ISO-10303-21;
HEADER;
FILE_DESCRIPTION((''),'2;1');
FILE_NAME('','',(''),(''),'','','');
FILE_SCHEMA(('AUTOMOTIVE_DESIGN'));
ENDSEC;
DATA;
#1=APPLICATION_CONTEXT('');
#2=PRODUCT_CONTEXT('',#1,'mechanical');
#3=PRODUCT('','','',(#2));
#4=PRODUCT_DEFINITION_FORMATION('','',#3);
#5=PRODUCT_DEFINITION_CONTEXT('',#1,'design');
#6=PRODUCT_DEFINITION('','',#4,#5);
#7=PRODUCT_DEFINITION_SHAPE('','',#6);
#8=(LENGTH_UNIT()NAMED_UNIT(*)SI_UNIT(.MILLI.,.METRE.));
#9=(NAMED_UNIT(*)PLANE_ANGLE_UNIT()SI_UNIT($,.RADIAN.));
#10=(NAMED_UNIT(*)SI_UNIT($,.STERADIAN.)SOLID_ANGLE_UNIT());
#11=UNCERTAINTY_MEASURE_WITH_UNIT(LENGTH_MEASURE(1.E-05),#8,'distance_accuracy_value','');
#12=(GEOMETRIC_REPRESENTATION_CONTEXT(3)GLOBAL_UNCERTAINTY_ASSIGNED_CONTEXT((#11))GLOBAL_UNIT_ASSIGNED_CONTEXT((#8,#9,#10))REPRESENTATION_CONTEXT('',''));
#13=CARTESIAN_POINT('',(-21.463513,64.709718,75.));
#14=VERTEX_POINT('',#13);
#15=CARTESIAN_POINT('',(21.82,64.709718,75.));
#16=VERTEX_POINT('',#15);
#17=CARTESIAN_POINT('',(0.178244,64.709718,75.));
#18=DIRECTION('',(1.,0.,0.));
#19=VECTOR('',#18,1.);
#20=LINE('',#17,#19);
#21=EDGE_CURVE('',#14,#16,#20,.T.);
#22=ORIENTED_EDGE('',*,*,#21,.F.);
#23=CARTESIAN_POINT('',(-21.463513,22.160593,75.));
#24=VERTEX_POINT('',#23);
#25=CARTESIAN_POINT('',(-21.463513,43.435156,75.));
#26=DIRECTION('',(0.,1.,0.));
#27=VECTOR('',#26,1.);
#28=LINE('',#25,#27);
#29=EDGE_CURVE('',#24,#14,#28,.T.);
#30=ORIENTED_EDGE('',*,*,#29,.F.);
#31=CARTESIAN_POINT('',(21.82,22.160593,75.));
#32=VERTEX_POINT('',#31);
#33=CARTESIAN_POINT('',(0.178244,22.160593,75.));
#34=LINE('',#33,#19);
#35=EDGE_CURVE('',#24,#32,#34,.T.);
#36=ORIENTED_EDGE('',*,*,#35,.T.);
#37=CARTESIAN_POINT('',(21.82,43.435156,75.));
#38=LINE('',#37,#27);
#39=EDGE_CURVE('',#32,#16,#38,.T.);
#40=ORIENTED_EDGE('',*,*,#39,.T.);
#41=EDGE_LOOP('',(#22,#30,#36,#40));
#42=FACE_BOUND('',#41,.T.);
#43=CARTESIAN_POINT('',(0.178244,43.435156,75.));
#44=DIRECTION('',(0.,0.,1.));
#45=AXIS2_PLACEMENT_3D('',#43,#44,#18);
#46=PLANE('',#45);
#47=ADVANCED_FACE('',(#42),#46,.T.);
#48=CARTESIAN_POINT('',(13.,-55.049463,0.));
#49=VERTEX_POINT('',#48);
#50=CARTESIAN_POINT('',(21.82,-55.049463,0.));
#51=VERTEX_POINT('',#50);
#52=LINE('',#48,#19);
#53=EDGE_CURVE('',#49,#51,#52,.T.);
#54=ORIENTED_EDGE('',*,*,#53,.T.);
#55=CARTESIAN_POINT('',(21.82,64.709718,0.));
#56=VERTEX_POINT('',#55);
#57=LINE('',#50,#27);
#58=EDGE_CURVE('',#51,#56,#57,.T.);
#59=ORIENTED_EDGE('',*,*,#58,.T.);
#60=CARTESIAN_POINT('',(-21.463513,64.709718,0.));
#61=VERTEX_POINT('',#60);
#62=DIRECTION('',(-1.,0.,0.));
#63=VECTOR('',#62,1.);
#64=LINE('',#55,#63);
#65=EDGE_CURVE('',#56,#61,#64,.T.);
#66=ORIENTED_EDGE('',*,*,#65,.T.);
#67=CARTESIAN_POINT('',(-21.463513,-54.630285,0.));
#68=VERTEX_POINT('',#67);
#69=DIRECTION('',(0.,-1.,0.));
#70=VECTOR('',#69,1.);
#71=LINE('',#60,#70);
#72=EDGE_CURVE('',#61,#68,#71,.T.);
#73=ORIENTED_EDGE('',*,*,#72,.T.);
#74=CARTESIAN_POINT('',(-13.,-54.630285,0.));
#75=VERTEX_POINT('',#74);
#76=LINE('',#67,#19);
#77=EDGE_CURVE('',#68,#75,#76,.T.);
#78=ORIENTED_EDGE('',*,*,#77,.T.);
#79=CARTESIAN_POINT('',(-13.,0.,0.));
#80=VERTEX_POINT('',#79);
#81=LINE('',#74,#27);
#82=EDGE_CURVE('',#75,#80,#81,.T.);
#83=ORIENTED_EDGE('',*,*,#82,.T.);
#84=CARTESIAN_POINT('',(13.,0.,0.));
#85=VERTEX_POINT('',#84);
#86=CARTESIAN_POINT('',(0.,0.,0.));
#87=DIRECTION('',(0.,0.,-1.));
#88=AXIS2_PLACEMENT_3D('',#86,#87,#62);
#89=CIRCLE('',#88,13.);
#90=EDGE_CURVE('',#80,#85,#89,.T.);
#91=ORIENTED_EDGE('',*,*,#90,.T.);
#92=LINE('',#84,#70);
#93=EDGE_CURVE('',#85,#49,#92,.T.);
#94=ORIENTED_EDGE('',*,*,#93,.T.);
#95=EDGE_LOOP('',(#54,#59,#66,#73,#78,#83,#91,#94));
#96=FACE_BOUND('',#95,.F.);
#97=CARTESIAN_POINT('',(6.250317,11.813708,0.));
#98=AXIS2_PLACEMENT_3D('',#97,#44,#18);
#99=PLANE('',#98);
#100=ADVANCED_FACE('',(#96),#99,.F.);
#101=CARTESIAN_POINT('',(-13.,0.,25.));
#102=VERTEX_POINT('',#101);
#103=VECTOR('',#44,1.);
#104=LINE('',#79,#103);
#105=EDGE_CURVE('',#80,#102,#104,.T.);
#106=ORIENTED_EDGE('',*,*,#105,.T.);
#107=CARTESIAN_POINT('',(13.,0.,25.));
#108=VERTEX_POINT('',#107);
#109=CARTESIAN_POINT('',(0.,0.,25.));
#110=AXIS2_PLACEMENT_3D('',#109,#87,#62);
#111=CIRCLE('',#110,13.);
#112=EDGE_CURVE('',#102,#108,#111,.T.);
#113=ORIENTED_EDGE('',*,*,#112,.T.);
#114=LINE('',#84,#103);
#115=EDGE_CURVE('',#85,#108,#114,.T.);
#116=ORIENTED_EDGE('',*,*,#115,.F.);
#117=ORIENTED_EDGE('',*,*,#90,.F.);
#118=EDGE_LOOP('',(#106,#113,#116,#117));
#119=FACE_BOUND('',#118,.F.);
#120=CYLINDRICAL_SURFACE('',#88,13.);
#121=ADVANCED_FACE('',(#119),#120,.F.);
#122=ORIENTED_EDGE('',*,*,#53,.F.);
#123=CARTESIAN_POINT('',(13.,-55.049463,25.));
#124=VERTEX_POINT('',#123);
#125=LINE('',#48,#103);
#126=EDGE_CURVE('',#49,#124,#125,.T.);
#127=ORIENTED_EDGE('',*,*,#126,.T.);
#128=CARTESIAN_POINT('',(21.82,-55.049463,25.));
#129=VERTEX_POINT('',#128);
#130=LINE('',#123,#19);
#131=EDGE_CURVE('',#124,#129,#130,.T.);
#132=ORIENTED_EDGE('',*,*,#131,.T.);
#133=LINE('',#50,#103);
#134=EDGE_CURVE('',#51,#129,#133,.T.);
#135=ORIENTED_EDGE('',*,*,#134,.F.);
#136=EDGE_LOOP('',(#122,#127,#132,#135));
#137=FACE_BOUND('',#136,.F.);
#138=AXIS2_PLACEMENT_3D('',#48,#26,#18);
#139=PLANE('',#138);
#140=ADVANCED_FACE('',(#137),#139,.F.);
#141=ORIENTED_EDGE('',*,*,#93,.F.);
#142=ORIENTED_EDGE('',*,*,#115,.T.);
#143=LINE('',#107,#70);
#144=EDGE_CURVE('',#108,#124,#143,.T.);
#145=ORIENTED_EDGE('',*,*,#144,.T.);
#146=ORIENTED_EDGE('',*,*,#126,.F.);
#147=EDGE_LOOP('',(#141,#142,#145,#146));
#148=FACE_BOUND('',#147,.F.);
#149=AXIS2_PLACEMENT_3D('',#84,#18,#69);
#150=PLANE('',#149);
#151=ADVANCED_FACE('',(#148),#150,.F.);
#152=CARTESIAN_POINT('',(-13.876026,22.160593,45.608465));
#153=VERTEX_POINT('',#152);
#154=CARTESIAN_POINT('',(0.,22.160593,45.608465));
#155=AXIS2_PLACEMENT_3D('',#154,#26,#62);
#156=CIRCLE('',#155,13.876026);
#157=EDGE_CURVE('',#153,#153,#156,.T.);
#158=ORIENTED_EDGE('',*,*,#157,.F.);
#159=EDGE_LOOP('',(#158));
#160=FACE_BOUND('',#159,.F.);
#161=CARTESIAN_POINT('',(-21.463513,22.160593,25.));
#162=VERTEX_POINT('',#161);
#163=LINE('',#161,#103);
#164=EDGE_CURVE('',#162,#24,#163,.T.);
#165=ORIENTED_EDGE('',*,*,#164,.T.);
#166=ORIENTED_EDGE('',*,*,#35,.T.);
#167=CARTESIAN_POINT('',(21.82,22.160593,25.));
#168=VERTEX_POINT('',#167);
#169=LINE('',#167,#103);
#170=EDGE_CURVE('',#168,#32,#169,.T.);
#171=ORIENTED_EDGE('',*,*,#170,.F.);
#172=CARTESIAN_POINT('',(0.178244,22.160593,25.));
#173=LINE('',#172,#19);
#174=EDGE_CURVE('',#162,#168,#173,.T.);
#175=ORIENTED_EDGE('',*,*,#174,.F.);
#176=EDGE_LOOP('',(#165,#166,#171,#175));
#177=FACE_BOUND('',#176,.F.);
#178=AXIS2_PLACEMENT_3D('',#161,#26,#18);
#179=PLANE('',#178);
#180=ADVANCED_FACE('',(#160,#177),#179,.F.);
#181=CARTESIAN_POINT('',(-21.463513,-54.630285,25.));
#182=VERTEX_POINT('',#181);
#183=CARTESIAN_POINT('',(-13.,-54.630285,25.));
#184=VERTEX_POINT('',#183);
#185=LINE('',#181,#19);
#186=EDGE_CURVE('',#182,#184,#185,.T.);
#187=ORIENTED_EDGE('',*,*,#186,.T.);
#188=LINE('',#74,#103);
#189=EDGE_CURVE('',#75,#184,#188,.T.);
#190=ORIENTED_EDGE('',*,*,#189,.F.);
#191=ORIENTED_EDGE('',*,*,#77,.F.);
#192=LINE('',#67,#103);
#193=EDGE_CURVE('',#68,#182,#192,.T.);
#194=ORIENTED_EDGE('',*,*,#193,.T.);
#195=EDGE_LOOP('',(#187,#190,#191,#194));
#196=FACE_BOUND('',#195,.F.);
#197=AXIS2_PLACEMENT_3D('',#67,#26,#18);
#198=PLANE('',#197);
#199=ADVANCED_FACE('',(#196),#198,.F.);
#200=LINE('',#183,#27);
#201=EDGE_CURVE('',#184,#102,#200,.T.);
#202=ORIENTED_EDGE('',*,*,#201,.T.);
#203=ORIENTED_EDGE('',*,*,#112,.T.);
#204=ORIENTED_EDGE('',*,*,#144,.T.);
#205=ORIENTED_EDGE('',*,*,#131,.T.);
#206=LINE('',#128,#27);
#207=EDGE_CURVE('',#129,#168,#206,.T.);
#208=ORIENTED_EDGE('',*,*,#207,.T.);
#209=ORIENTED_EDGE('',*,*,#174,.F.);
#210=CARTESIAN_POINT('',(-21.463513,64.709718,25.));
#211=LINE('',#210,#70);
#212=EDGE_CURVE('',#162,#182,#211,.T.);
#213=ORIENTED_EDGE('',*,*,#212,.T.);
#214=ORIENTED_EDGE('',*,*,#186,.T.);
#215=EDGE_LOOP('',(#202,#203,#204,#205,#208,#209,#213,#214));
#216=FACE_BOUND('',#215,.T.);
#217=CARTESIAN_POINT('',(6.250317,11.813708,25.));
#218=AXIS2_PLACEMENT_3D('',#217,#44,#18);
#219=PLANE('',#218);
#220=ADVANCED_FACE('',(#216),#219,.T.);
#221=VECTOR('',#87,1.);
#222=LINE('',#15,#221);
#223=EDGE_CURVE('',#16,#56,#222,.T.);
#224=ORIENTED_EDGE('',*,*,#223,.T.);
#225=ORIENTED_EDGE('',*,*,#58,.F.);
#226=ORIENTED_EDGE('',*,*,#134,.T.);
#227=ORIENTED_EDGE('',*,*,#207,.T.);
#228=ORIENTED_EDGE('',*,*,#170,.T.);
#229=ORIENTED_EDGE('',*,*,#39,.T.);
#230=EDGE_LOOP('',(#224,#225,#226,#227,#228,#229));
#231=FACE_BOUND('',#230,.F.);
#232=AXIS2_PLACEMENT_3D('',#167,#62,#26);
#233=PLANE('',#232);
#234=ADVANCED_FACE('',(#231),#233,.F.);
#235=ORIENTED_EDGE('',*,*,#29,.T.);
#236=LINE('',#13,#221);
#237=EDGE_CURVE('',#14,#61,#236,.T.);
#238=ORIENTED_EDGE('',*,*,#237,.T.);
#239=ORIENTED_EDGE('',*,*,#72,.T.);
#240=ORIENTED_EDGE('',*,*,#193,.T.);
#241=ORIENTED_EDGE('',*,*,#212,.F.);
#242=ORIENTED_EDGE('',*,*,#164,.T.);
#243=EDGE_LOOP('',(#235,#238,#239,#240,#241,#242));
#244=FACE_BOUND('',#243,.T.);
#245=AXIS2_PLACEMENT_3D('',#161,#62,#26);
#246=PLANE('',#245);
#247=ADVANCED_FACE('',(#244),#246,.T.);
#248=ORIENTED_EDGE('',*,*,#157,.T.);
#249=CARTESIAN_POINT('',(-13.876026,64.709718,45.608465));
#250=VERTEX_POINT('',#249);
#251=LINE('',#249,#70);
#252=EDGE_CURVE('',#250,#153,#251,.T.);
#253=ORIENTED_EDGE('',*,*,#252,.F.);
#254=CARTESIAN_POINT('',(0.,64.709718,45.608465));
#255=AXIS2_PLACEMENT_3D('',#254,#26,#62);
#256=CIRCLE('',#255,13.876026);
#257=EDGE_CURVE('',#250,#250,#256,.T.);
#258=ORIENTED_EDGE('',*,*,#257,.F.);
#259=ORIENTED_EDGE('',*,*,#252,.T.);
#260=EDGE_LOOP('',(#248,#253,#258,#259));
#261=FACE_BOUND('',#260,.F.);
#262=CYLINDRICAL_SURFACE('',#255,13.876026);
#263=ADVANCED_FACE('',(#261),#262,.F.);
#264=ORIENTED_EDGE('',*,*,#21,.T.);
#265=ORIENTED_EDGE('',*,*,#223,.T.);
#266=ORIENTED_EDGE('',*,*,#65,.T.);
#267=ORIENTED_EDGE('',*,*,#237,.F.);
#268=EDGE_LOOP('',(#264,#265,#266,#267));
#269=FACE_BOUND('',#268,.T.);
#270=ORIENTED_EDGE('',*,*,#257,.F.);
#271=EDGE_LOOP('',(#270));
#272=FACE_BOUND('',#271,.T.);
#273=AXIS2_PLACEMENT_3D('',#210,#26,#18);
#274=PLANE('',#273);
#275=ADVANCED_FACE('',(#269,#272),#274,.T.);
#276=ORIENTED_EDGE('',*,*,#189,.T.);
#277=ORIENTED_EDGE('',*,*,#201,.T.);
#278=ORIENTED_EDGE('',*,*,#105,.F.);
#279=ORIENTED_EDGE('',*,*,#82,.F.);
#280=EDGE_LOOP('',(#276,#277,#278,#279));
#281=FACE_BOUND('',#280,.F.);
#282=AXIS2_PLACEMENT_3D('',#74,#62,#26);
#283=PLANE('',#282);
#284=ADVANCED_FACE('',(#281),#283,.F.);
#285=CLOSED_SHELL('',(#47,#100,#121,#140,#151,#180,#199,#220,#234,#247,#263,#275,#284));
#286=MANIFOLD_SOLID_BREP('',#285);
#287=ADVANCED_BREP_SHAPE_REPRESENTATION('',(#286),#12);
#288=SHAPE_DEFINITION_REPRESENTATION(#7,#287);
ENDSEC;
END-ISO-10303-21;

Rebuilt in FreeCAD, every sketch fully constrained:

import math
import FreeCAD as App
import Part
import Sketcher


def add_polygon(sketch, points):
    """Adds a closed chain of lines whose ends are joined by coincident constraints."""
    first, n = sketch.GeometryCount, len(points)
    for a, b in zip(points, points[1:] + points[:1]):
        sketch.addGeometry(Part.LineSegment(App.Vector(*a, 0), App.Vector(*b, 0)), False)
    for i in range(n):
        sketch.addConstraint(Sketcher.Constraint("Coincident", first + i, 2, first + (i + 1) % n, 1))

doc = App.newDocument("Part")
body = doc.addObject("PartDesign::Body", "Body")

sketch1 = body.newObject("Sketcher::SketchObject", "Sketch")
sketch1.AttachmentSupport = (doc.getObject("XY_Plane"), [""])
sketch1.MapMode = "FlatFace"
sketch1.addGeometry([
    Part.LineSegment(App.Vector(13, -55, 0), App.Vector(22, -55, 0)),
    Part.LineSegment(App.Vector(22, -55, 0), App.Vector(22, 65, 0)),
    Part.LineSegment(App.Vector(22, 65, 0), App.Vector(-21, 65, 0)),
    Part.LineSegment(App.Vector(-21, 65, 0), App.Vector(-21, -55, 0)),
    Part.LineSegment(App.Vector(-21, -55, 0), App.Vector(-13, -55, 0)),
    Part.LineSegment(App.Vector(-13, -55, 0), App.Vector(-13, 0, 0)),
    Part.ArcOfCircle(Part.Circle(App.Vector(0, 0, 0), App.Vector(0, 0, 1), 13), math.radians(0), math.radians(180)),
    Part.LineSegment(App.Vector(13, 0, 0), App.Vector(13, -55, 0)),
], False)
sketch1.addConstraint([
    Sketcher.Constraint("Coincident", 0, 2, 1, 1),
    Sketcher.Constraint("Coincident", 1, 2, 2, 1),
    Sketcher.Constraint("Coincident", 2, 2, 3, 1),
    Sketcher.Constraint("Coincident", 3, 2, 4, 1),
    Sketcher.Constraint("Coincident", 4, 2, 5, 1),
    Sketcher.Constraint("Tangent", 5, 2, 6, 2),
    Sketcher.Constraint("Tangent", 6, 1, 7, 1),
    Sketcher.Constraint("Coincident", 7, 2, 0, 1),
    Sketcher.Constraint("Horizontal", 0),
    Sketcher.Constraint("Vertical", 1),
    Sketcher.Constraint("Horizontal", 2),
    Sketcher.Constraint("Vertical", 3),
    Sketcher.Constraint("Horizontal", 4),
    Sketcher.Constraint("Vertical", 5),
    Sketcher.Constraint("Vertical", 7),
    Sketcher.Constraint("Coincident", 6, 3, -1, 1),
    Sketcher.Constraint("Radius", 6, 13.0),
    Sketcher.Constraint("DistanceX", 0, 1, 0, 2, 8.82),
    Sketcher.Constraint("DistanceY", 1, 1, 1, 2, 119.759181),
    Sketcher.Constraint("DistanceX", 2, 2, 2, 1, 43.283513),
    Sketcher.Constraint("DistanceY", 3, 2, 3, 1, 119.340003),
    Sketcher.Constraint("DistanceY", 5, 1, 5, 2, 54.630285),
])
pad1 = body.newObject("PartDesign::Pad", "Pad")
pad1.Profile = sketch1
pad1.Length = 25

sketch2 = body.newObject("Sketcher::SketchObject", "Sketch001")
sketch2.AttachmentSupport = (doc.getObject("XY_Plane"), [""])
sketch2.MapMode = "FlatFace"
sketch2.AttachmentOffset = App.Placement(App.Vector(0, 0, 25), App.Rotation())
add_polygon(sketch2, [(-21, 65), (-21, 22), (22, 22), (22, 65)])
sketch2.addConstraint([
    Sketcher.Constraint("Vertical", 0),
    Sketcher.Constraint("Horizontal", 1),
    Sketcher.Constraint("Vertical", 2),
    Sketcher.Constraint("Horizontal", 3),
    Sketcher.Constraint("DistanceX", -1, 1, 1, 2, 21.82),
    Sketcher.Constraint("DistanceX", 1, 1, 1, 2, 43.283513),
    Sketcher.Constraint("DistanceY", 0, 2, 0, 1, 42.549125),
    Sketcher.Constraint("DistanceY", -1, 1, 0, 2, 22.160593),
])
pad2 = body.newObject("PartDesign::Pad", "Pad001")
pad2.Profile = sketch2
pad2.Length = 50

sketch3 = body.newObject("Sketcher::SketchObject", "Sketch002")
sketch3.AttachmentSupport = (doc.getObject("XZ_Plane"), [""])
sketch3.MapMode = "FlatFace"
sketch3.AttachmentOffset = App.Placement(App.Vector(0, 0, -64.709718), App.Rotation())
sketch3.addGeometry(Part.Circle(App.Vector(0, 46, 0), App.Vector(0, 0, 1), 14), False)
sketch3.addConstraint([
    Sketcher.Constraint("PointOnObject", 0, 3, -2),
    Sketcher.Constraint("Diameter", 0, 27.752052),
    Sketcher.Constraint("DistanceY", -1, 1, 0, 3, 45.608465),
])
pocket1 = body.newObject("PartDesign::Pocket", "Pocket")
pocket1.Profile = sketch3
pocket1.Type = "ThroughAll"
pocket1.Reversed = True

doc.recompute()
